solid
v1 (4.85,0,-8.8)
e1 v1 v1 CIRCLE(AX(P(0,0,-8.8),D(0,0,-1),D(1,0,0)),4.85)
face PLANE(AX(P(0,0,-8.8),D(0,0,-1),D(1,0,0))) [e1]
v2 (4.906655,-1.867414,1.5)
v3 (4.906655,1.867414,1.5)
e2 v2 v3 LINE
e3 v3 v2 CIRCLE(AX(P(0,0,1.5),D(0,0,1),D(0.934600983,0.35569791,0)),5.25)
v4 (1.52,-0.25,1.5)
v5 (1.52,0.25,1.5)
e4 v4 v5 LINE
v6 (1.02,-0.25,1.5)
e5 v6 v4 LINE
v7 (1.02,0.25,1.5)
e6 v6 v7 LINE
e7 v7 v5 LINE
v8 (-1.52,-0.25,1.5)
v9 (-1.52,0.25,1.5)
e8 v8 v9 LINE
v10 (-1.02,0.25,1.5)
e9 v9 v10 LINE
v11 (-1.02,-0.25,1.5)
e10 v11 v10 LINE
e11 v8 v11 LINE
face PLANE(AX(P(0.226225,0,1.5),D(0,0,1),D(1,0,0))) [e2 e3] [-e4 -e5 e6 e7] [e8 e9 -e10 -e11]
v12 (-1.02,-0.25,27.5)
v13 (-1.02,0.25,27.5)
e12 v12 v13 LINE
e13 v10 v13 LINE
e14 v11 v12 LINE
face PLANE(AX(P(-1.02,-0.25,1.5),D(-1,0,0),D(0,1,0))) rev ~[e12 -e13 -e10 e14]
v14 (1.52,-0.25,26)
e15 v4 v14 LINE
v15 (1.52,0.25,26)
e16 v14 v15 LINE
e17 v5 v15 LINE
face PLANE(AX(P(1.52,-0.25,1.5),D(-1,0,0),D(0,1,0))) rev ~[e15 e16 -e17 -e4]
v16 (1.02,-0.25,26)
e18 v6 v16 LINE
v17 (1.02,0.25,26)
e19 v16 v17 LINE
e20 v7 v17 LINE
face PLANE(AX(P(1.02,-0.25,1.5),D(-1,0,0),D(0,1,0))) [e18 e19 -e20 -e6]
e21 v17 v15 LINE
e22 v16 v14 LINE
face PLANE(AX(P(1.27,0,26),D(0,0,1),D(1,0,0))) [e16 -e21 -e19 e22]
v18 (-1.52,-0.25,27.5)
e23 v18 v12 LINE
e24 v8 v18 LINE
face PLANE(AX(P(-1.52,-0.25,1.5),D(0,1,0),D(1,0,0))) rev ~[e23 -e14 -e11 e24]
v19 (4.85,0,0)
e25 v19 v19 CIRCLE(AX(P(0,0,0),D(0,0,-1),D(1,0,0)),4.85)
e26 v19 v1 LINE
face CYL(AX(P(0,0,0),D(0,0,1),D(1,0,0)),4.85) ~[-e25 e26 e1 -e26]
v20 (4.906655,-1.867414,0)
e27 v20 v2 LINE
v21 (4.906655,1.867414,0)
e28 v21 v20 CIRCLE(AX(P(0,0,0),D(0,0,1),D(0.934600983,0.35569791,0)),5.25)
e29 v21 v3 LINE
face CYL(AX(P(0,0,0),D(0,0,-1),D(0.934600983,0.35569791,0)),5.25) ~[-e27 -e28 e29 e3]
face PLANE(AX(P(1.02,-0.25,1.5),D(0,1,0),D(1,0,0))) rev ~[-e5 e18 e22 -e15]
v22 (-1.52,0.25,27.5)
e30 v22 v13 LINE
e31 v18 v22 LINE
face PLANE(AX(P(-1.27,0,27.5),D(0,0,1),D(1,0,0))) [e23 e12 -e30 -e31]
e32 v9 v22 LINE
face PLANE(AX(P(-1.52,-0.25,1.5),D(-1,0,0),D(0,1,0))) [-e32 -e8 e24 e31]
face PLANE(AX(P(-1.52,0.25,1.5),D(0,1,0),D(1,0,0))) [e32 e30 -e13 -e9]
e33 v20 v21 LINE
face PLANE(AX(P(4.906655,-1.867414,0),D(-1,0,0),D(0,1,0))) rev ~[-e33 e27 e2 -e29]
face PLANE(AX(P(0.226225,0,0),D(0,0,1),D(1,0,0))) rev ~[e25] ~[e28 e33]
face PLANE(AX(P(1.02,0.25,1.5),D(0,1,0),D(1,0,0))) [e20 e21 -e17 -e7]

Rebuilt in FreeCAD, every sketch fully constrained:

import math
import FreeCAD as App
import Part
import Sketcher

V = App.Vector
Q = App.Units.Quantity

doc = App.newDocument("Part")
body = doc.addObject("PartDesign::Body", "Body")

sketch1 = body.newObject("Sketcher::SketchObject", "Sketch")
sketch1.AttachmentSupport = (doc.getObject("XY_Plane"), [""])
sketch1.MapMode = "FlatFace"
sketch1.addGeometry(Part.ArcOfCircle(Part.Circle(V(0, 0, 0), V(0, 0, 1), 5.2), math.radians(21), math.radians(339)), False)
sketch1.addGeometry(Part.LineSegment(V(4.9, -1.9, 0), V(4.9, 1.9, 0)), False)
sketch1.addConstraint(Sketcher.Constraint("Coincident", 0, 1, 1, 2))
sketch1.addConstraint(Sketcher.Constraint("Coincident", 1, 1, 0, 2))
sketch1.addConstraint(Sketcher.Constraint("Vertical", 1))
sketch1.addConstraint(Sketcher.Constraint("Coincident", 0, 3, -1, 1))
sketch1.addConstraint(Sketcher.Constraint("Radius", 0, Q("5.25 mm")))
sketch1.addConstraint(Sketcher.Constraint("DistanceY", 1, 1, 1, 2, Q("3.734828 mm")))
pad1 = body.newObject("PartDesign::Pad", "Pad")
pad1.Profile = sketch1
pad1.Length = 1.5

sketch2 = body.newObject("Sketcher::SketchObject", "Sketch001")
sketch2.AttachmentSupport = (doc.getObject("XY_Plane"), [""])
sketch2.MapMode = "FlatFace"
sketch2.addGeometry(Part.Circle(V(0, 0, 0), V(0, 0, 1), 4.8), False)
sketch2.addConstraint(Sketcher.Constraint("Coincident", 0, 3, -1, 1))
sketch2.addConstraint(Sketcher.Constraint("Diameter", 0, Q("9.7 mm")))
pad2 = body.newObject("PartDesign::Pad", "Pad001")
pad2.Profile = sketch2
pad2.Length = 8.8
pad2.Reversed = True

sketch3 = body.newObject("Sketcher::SketchObject", "Sketch002")
sketch3.AttachmentSupport = (doc.getObject("XY_Plane"), [""])
sketch3.MapMode = "FlatFace"
sketch3.AttachmentOffset = App.Placement(V(0, 0, 1.5), App.Rotation())
sketch3.addGeometry(Part.LineSegment(V(-1.5, 0.2, 0), V(-1.5, -0.2, 0)), False)
sketch3.addGeometry(Part.LineSegment(V(-1.5, -0.2, 0), V(-1, -0.2, 0)), False)
sketch3.addGeometry(Part.LineSegment(V(-1, -0.2, 0), V(-1, 0.2, 0)), False)
sketch3.addGeometry(Part.LineSegment(V(-1, 0.2, 0), V(-1.5, 0.2, 0)), False)
sketch3.addConstraint(Sketcher.Constraint("Coincident", 0, 2, 1, 1))
sketch3.addConstraint(Sketcher.Constraint("Coincident", 1, 2, 2, 1))
sketch3.addConstraint(Sketcher.Constraint("Coincident", 2, 2, 3, 1))
sketch3.addConstraint(Sketcher.Constraint("Coincident", 3, 2, 0, 1))
sketch3.addConstraint(Sketcher.Constraint("Vertical", 0))
sketch3.addConstraint(Sketcher.Constraint("Horizontal", 1))
sketch3.addConstraint(Sketcher.Constraint("Vertical", 2))
sketch3.addConstraint(Sketcher.Constraint("Horizontal", 3))
sketch3.addConstraint(Sketcher.Constraint("Equal", 3, 0))
sketch3.addConstraint(Sketcher.Constraint("DistanceX", 1, 1, 1, 2, Q("0.5 mm")))
sketch3.addConstraint(Sketcher.Constraint("DistanceX", 0, 2, -1, 1, Q("1.52 mm")))
sketch3.addConstraint(Sketcher.Constraint("DistanceY", 0, 2, -1, 1, Q("0.25 mm")))
pad3 = body.newObject("PartDesign::Pad", "Pad002")
pad3.Profile = sketch3
pad3.Length = 26

sketch4 = body.newObject("Sketcher::SketchObject", "Sketch003")
sketch4.AttachmentSupport = (doc.getObject("XY_Plane"), [""])
sketch4.MapMode = "FlatFace"
sketch4.AttachmentOffset = App.Placement(V(0, 0, 1.5), App.Rotation())
sketch4.addGeometry(Part.LineSegment(V(1, 0.2, 0), V(1, -0.2, 0)), False)
sketch4.addGeometry(Part.LineSegment(V(1, -0.2, 0), V(1.5, -0.2, 0)), False)
sketch4.addGeometry(Part.LineSegment(V(1.5, -0.2, 0), V(1.5, 0.2, 0)), False)
sketch4.addGeometry(Part.LineSegment(V(1.5, 0.2, 0), V(1, 0.2, 0)), False)
sketch4.addConstraint(Sketcher.Constraint("Coincident", 0, 2, 1, 1))
sketch4.addConstraint(Sketcher.Constraint("Coincident", 1, 2, 2, 1))
sketch4.addConstraint(Sketcher.Constraint("Coincident", 2, 2, 3, 1))
sketch4.addConstraint(Sketcher.Constraint("Coincident", 3, 2, 0, 1))
sketch4.addConstraint(Sketcher.Constraint("Vertical", 0))
sketch4.addConstraint(Sketcher.Constraint("Horizontal", 1))
sketch4.addConstraint(Sketcher.Constraint("Vertical", 2))
sketch4.addConstraint(Sketcher.Constraint("Horizontal", 3))
sketch4.addConstraint(Sketcher.Constraint("Equal", 3, 0))
sketch4.addConstraint(Sketcher.Constraint("DistanceX", 1, 1, 1, 2, Q("0.5 mm")))
sketch4.addConstraint(Sketcher.Constraint("DistanceX", -1, 1, 0, 2, Q("1.02 mm")))
sketch4.addConstraint(Sketcher.Constraint("DistanceY", 0, 2, -1, 1, Q("0.25 mm")))
pad4 = body.newObject("PartDesign::Pad", "Pad003")
pad4.Profile = sketch4
pad4.Length = 24.5

doc.recompute()
